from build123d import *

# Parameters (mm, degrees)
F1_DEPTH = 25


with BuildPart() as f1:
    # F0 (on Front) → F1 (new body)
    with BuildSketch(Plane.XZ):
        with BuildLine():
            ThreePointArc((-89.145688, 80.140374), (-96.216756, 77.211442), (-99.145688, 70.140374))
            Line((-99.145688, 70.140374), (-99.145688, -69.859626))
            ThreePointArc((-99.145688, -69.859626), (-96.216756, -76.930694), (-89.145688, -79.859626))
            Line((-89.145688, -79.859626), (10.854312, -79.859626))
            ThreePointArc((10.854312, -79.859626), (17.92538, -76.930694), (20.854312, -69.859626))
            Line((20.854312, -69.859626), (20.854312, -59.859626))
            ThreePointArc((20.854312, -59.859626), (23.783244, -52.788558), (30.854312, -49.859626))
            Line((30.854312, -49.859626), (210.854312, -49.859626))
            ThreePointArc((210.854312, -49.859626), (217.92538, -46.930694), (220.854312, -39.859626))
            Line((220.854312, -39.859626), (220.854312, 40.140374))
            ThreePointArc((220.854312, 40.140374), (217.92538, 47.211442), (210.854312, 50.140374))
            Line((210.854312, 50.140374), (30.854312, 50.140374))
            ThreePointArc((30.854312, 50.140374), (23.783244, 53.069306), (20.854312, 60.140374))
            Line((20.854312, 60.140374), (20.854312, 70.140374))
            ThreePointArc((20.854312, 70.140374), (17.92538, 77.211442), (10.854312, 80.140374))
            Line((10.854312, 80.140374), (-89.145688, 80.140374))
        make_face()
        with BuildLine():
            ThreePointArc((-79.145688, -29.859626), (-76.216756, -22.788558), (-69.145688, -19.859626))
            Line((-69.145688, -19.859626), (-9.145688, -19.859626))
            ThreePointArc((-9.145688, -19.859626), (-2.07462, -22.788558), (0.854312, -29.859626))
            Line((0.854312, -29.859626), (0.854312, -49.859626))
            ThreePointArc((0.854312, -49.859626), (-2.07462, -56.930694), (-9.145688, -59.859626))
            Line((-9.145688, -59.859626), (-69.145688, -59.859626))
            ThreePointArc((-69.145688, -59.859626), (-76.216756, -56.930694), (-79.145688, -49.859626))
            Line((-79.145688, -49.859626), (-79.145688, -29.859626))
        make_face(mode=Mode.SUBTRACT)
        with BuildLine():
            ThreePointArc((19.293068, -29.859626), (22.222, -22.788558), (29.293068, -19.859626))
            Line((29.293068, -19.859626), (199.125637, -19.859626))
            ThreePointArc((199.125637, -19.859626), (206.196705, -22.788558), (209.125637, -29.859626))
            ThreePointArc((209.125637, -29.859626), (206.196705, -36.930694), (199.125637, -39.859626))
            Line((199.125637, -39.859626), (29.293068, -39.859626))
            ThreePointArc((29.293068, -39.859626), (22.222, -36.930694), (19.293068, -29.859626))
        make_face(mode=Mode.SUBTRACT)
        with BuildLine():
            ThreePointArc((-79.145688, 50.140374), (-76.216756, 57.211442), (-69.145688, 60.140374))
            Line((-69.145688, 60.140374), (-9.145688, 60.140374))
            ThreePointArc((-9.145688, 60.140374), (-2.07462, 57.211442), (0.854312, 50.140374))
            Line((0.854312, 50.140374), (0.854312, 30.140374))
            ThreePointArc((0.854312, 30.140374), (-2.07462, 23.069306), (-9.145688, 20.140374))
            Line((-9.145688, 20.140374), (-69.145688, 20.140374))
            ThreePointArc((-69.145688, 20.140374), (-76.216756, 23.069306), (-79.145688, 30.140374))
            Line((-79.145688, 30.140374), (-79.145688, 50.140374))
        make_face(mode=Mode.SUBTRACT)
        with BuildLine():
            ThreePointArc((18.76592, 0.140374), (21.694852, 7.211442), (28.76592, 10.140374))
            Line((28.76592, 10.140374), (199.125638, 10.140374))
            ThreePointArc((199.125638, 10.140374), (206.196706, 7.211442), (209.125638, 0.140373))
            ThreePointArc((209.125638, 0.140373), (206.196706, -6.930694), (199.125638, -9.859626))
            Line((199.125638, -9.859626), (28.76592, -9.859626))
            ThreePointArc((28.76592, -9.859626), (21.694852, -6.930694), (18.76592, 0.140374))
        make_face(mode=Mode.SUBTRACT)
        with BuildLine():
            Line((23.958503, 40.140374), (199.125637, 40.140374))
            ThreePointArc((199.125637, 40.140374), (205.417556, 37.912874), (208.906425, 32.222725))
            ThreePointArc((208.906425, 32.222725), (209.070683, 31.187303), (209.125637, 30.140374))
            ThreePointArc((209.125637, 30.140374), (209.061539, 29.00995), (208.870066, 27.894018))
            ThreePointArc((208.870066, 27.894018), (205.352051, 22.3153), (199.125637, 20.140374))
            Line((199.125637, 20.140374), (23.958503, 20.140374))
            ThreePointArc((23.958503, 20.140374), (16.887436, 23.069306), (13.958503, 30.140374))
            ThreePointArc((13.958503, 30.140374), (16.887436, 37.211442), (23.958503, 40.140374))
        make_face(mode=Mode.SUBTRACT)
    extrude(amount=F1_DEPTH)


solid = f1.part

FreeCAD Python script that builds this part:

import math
import FreeCAD as App
import Part
import Sketcher
Q = App.Units.Quantity

doc = App.newDocument("Part")
body = doc.addObject("PartDesign::Body", "Body")

# Sketch on XZ plane
sketch1 = body.newObject("Sketcher::SketchObject", "Sketch")
sketch1.AttachmentSupport = (doc.getObject("XZ_Plane"), [""])
sketch1.MapMode = "FlatFace"
sketch1.addGeometry([
    Part.ArcOfCircle(Part.Circle(App.Vector(-89.145689, 70.140375, 0), App.Vector(0, 0, 1), 9.999999), math.radians(89.999996), math.radians(180.000004)),  # 0
    Part.LineSegment(App.Vector(-99.145688, 70.140374, 0), App.Vector(-99.145688, -69.859626, 0)),  # 1
    Part.ArcOfCircle(Part.Circle(App.Vector(-89.145689, -69.859627, 0), App.Vector(0, 0, 1), 9.999999), math.radians(179.999996), math.radians(270.000004)),  # 2
    Part.LineSegment(App.Vector(-89.145688, -79.859626, 0), App.Vector(10.854312, -79.859626, 0)),  # 3
    Part.ArcOfCircle(Part.Circle(App.Vector(10.854313, -69.859627, 0), App.Vector(0, 0, 1), 9.999999), math.radians(-90.000004), math.radians(0.000004)),  # 4
    Part.LineSegment(App.Vector(20.854312, -69.859626, 0), App.Vector(20.854312, -59.859626, 0)),  # 5
    Part.ArcOfCircle(Part.Circle(App.Vector(30.854311, -59.859625, 0), App.Vector(0, 0, 1), 9.999999), math.radians(89.999996), math.radians(180.000004)),  # 6
    Part.LineSegment(App.Vector(30.854312, -49.859626, 0), App.Vector(210.854312, -49.859626, 0)),  # 7
    Part.ArcOfCircle(Part.Circle(App.Vector(210.854313, -39.859627, 0), App.Vector(0, 0, 1), 9.999999), math.radians(-90.000004), math.radians(0.000004)),  # 8
    Part.LineSegment(App.Vector(220.854312, -39.859626, 0), App.Vector(220.854312, 40.140374, 0)),  # 9
    Part.ArcOfCircle(Part.Circle(App.Vector(210.854313, 40.140375, 0), App.Vector(0, 0, 1), 9.999999), math.radians(-0.000004), math.radians(90.000004)),  # 10
    Part.LineSegment(App.Vector(210.854312, 50.140374, 0), App.Vector(30.854312, 50.140374, 0)),  # 11
    Part.ArcOfCircle(Part.Circle(App.Vector(30.854311, 60.140373, 0), App.Vector(0, 0, 1), 9.999999), math.radians(179.999996), math.radians(270.000004)),  # 12
    Part.LineSegment(App.Vector(20.854312, 60.140374, 0), App.Vector(20.854312, 70.140374, 0)),  # 13
    Part.ArcOfCircle(Part.Circle(App.Vector(10.854313, 70.140375, 0), App.Vector(0, 0, 1), 9.999999), math.radians(-0.000004), math.radians(90.000004)),  # 14
    Part.LineSegment(App.Vector(10.854312, 80.140374, 0), App.Vector(-89.145688, 80.140374, 0)),  # 15
    Part.LineSegment(App.Vector(-79.145688, -49.859626, 0), App.Vector(-79.145688, -29.859626, 0)),  # 16
    Part.ArcOfCircle(Part.Circle(App.Vector(-69.145689, -29.859625, 0), App.Vector(0, 0, 1), 9.999999), math.radians(89.999996), math.radians(180.000004)),  # 17
    Part.LineSegment(App.Vector(-69.145688, -19.859626, 0), App.Vector(-9.145688, -19.859626, 0)),  # 18
    Part.ArcOfCircle(Part.Circle(App.Vector(-9.145687, -29.859625, 0), App.Vector(0, 0, 1), 9.999999), math.radians(-0.000004), math.radians(90.000004)),  # 19
    Part.LineSegment(App.Vector(0.854312, -29.859626, 0), App.Vector(0.854312, -49.859626, 0)),  # 20
    Part.ArcOfCircle(Part.Circle(App.Vector(-9.145687, -49.859627, 0), App.Vector(0, 0, 1), 9.999999), math.radians(-90.000004), math.radians(0.000004)),  # 21
    Part.LineSegment(App.Vector(-9.145688, -59.859626, 0), App.Vector(-69.145688, -59.859626, 0)),  # 22
    Part.ArcOfCircle(Part.Circle(App.Vector(-69.145689, -49.859627, 0), App.Vector(0, 0, 1), 9.999999), math.radians(179.999996), math.radians(270.000004)),  # 23
    Part.ArcOfCircle(Part.Circle(App.Vector(29.293067, -29.859627, 0), App.Vector(0, 0, 1), 9.999999), math.radians(179.999996), math.radians(270.000004)),  # 24
    Part.ArcOfCircle(Part.Circle(App.Vector(29.293067, -29.859625, 0), App.Vector(0, 0, 1), 9.999999), math.radians(89.999996), math.radians(180.000004)),  # 25
    Part.LineSegment(App.Vector(29.293068, -19.859626, 0), App.Vector(199.125637, -19.859626, 0)),  # 26
    Part.ArcOfCircle(Part.Circle(App.Vector(199.125638, -29.859625, 0), App.Vector(0, 0, 1), 9.999999), math.radians(-0.000004), math.radians(90.000004)),  # 27
    Part.ArcOfCircle(Part.Circle(App.Vector(199.125638, -29.859627, 0), App.Vector(0, 0, 1), 9.999999), math.radians(-90.000004), math.radians(0.000004)),  # 28
    Part.LineSegment(App.Vector(199.125637, -39.859626, 0), App.Vector(29.293068, -39.859626, 0)),  # 29
    Part.LineSegment(App.Vector(-79.145688, 30.140374, 0), App.Vector(-79.145688, 50.140374, 0)),  # 30
    Part.ArcOfCircle(Part.Circle(App.Vector(-69.145689, 50.140375, 0), App.Vector(0, 0, 1), 9.999999), math.radians(89.999996), math.radians(180.000004)),  # 31
    Part.LineSegment(App.Vector(-69.145688, 60.140374, 0), App.Vector(-9.145688, 60.140374, 0)),  # 32
    Part.ArcOfCircle(Part.Circle(App.Vector(-9.145687, 50.140375, 0), App.Vector(0, 0, 1), 9.999999), math.radians(-0.000004), math.radians(90.000004)),  # 33
    Part.LineSegment(App.Vector(0.854312, 50.140374, 0), App.Vector(0.854312, 30.140374, 0)),  # 34
    Part.ArcOfCircle(Part.Circle(App.Vector(-9.145687, 30.140373, 0), App.Vector(0, 0, 1), 9.999999), math.radians(-90.000004), math.radians(0.000004)),  # 35
    Part.LineSegment(App.Vector(-9.145688, 20.140374, 0), App.Vector(-69.145688, 20.140374, 0)),  # 36
    Part.ArcOfCircle(Part.Circle(App.Vector(-69.145689, 30.140373, 0), App.Vector(0, 0, 1), 9.999999), math.radians(179.999996), math.radians(270.000004)),  # 37
    Part.ArcOfCircle(Part.Circle(App.Vector(28.765919, 0.140373, 0), App.Vector(0, 0, 1), 9.999999), math.radians(179.999996), math.radians(270.000004)),  # 38
    Part.ArcOfCircle(Part.Circle(App.Vector(28.765919, 0.140375, 0), App.Vector(0, 0, 1), 9.999999), math.radians(89.999996), math.radians(180.000004)),  # 39
    Part.LineSegment(App.Vector(28.76592, 10.140374, 0), App.Vector(199.125638, 10.140374, 0)),  # 40
    Part.ArcOfCircle(Part.Circle(App.Vector(199.125639, 0.140375, 0), App.Vector(0, 0, 1), 9.999999), math.radians(-0.000009), math.radians(90.000004)),  # 41
    Part.ArcOfCircle(Part.Circle(App.Vector(199.125639, 0.140373, 0), App.Vector(0, 0, 1), 9.999999), math.radians(-90.000004), math.radians(-0.000002)),  # 42
    Part.LineSegment(App.Vector(199.125638, -9.859626, 0), App.Vector(28.76592, -9.859626, 0)),  # 43
    Part.ArcOfCircle(Part.Circle(App.Vector(23.958504, 30.140373, 0), App.Vector(0, 0, 1), 10.000001), math.radians(90.000006), math.radians(179.999994)),  # 44
    Part.LineSegment(App.Vector(23.958503, 40.140374, 0), App.Vector(199.125637, 40.140374, 0)),  # 45
    Part.ArcOfCircle(Part.Circle(App.Vector(199.125637, 30.140374, 0), App.Vector(0, 0, 1), 10), math.radians(12.018944), math.radians(90.000001)),  # 46
    Part.ArcOfCircle(Part.Circle(App.Vector(199.125641, 30.140374, 0), App.Vector(0, 0, 1), 9.999996), math.radians(-0.000002), math.radians(12.018948)),  # 47
    Part.ArcOfCircle(Part.Circle(App.Vector(199.125645, 30.14037, 0), App.Vector(0, 0, 1), 9.999992), math.radians(-12.981441), math.radians(0.00002)),  # 48
    Part.ArcOfCircle(Part.Circle(App.Vector(199.125639, 30.140373, 0), App.Vector(0, 0, 1), 9.999999), math.radians(-90.000009), math.radians(-12.981445)),  # 49
    Part.LineSegment(App.Vector(199.125637, 20.140374, 0), App.Vector(23.958503, 20.140374, 0)),  # 50
    Part.ArcOfCircle(Part.Circle(App.Vector(23.958504, 30.140375, 0), App.Vector(0, 0, 1), 10.000001), math.radians(-179.999994), math.radians(-90.000006)),  # 51
], False)
sketch1.addConstraint([
    Sketcher.Constraint("Tangent", 0, 2, 1, 1),
    Sketcher.Constraint("Tangent", 1, 2, 2, 1),
    Sketcher.Constraint("Tangent", 2, 2, 3, 1),
    Sketcher.Constraint("Tangent", 3, 2, 4, 1),
    Sketcher.Constraint("Tangent", 4, 2, 5, 1),
    Sketcher.Constraint("Tangent", 5, 2, 6, 2),
    Sketcher.Constraint("Tangent", 6, 1, 7, 1),
    Sketcher.Constraint("Tangent", 7, 2, 8, 1),
    Sketcher.Constraint("Tangent", 8, 2, 9, 1),
    Sketcher.Constraint("Tangent", 9, 2, 10, 1),
    Sketcher.Constraint("Tangent", 10, 2, 11, 1),
    Sketcher.Constraint("Tangent", 11, 2, 12, 2),
    Sketcher.Constraint("Tangent", 12, 1, 13, 1),
    Sketcher.Constraint("Tangent", 13, 2, 14, 1),
    Sketcher.Constraint("Tangent", 14, 2, 15, 1),
    Sketcher.Constraint("Tangent", 15, 2, 0, 1),
    Sketcher.Constraint("Tangent", 16, 2, 17, 2),
    Sketcher.Constraint("Tangent", 17, 1, 18, 1),
    Sketcher.Constraint("Tangent", 18, 2, 19, 2),
    Sketcher.Constraint("Tangent", 19, 1, 20, 1),
    Sketcher.Constraint("Tangent", 20, 2, 21, 2),
    Sketcher.Constraint("Tangent", 21, 1, 22, 1),
    Sketcher.Constraint("Tangent", 22, 2, 23, 2),
    Sketcher.Constraint("Tangent", 23, 1, 16, 1),
    Sketcher.Constraint("Tangent", 24, 1, 25, 2),
    Sketcher.Constraint("Tangent", 25, 1, 26, 1),
    Sketcher.Constraint("Tangent", 26, 2, 27, 2),
    Sketcher.Constraint("Tangent", 27, 1, 28, 2),
    Sketcher.Constraint("Tangent", 28, 1, 29, 1),
    Sketcher.Constraint("Tangent", 29, 2, 24, 2),
    Sketcher.Constraint("Tangent", 30, 2, 31, 2),
    Sketcher.Constraint("Tangent", 31, 1, 32, 1),
    Sketcher.Constraint("Tangent", 32, 2, 33, 2),
    Sketcher.Constraint("Tangent", 33, 1, 34, 1),
    Sketcher.Constraint("Tangent", 34, 2, 35, 2),
    Sketcher.Constraint("Tangent", 35, 1, 36, 1),
    Sketcher.Constraint("Tangent", 36, 2, 37, 2),
    Sketcher.Constraint("Tangent", 37, 1, 30, 1),
    Sketcher.Constraint("Tangent", 38, 1, 39, 2),
    Sketcher.Constraint("Tangent", 39, 1, 40, 1),
    Sketcher.Constraint("Tangent", 40, 2, 41, 2),
    Sketcher.Constraint("Tangent", 41, 1, 42, 2),
    Sketcher.Constraint("Tangent", 42, 1, 43, 1),
    Sketcher.Constraint("Tangent", 43, 2, 38, 2),
    Sketcher.Constraint("Tangent", 44, 1, 45, 1),
    Sketcher.Constraint("Tangent", 45, 2, 46, 2),
    Sketcher.Constraint("Tangent", 46, 1, 47, 2),
    Sketcher.Constraint("Tangent", 47, 1, 48, 2),
    Sketcher.Constraint("Tangent", 48, 1, 49, 2),
    Sketcher.Constraint("Tangent", 49, 1, 50, 1),
    Sketcher.Constraint("Tangent", 50, 2, 51, 2),
    Sketcher.Constraint("Tangent", 51, 1, 44, 2),
    Sketcher.Constraint("Vertical", 1),
    Sketcher.Constraint("Horizontal", 3),
    Sketcher.Constraint("Vertical", 5),
    Sketcher.Constraint("Horizontal", 7),
    Sketcher.Constraint("Vertical", 9),
    Sketcher.Constraint("Horizontal", 11),
    Sketcher.Constraint("Vertical", 13),
    Sketcher.Constraint("Horizontal", 15),
    Sketcher.Constraint("Vertical", 16),
    Sketcher.Constraint("Horizontal", 18),
    Sketcher.Constraint("Vertical", 20),
    Sketcher.Constraint("Horizontal", 22),
    Sketcher.Constraint("Horizontal", 26),
    Sketcher.Constraint("Horizontal", 29),
    Sketcher.Constraint("Vertical", 30),
    Sketcher.Constraint("Horizontal", 32),
    Sketcher.Constraint("Vertical", 34),
    Sketcher.Constraint("Horizontal", 36),
    Sketcher.Constraint("Horizontal", 40),
    Sketcher.Constraint("Horizontal", 43),
    Sketcher.Constraint("Horizontal", 45),
    Sketcher.Constraint("Horizontal", 50),
    Sketcher.Constraint("Coincident", 48, 3, 46, 3),
    Sketcher.Constraint("Equal", 0, 2),
    Sketcher.Constraint("Equal", 2, 4),
    Sketcher.Constraint("Equal", 4, 6),
    Sketcher.Constraint("Equal", 6, 8),
    Sketcher.Constraint("Equal", 8, 10),
    Sketcher.Constraint("Equal", 10, 12),
    Sketcher.Constraint("Equal", 12, 14),
    Sketcher.Constraint("Equal", 14, 17),
    Sketcher.Constraint("Equal", 17, 19),
    Sketcher.Constraint("Equal", 19, 21),
    Sketcher.Constraint("Equal", 21, 23),
    Sketcher.Constraint("Equal", 23, 24),
    Sketcher.Constraint("Equal", 24, 25),
    Sketcher.Constraint("Equal", 25, 27),
    Sketcher.Constraint("Equal", 28, 31),
    Sketcher.Constraint("Equal", 31, 33),
    Sketcher.Constraint("Equal", 33, 35),
    Sketcher.Constraint("Equal", 35, 37),
    Sketcher.Constraint("Equal", 37, 38),
    Sketcher.Constraint("Equal", 38, 39),
    Sketcher.Constraint("Equal", 39, 41),
    Sketcher.Constraint("Equal", 42, 44),
    Sketcher.Constraint("Equal", 44, 46),
    Sketcher.Constraint("Equal", 46, 49),
    Sketcher.Constraint("Horizontal", 19, 3, 24, 3),
    Sketcher.Constraint("Horizontal", 37, 3, 44, 3),
    Sketcher.Constraint("Horizontal", 23, 3, 6, 1),
    Sketcher.Constraint("Horizontal", 33, 3, 10, 2),
    Sketcher.Constraint("Horizontal", 19, 1, 24, 1),
    Sketcher.Constraint("Horizontal", 24, 1, 27, 1),
    Sketcher.Constraint("Horizontal", 8, 2, 28, 1),
    Sketcher.Constraint("Horizontal", 42, 3, 38, 1),
    Sketcher.Constraint("Horizontal", 38, 1, 41, 1),
    Sketcher.Constraint("Horizontal", 9, 2, 44, 1),
    Sketcher.Constraint("Horizontal", 37, 1, 47, 1),
    Sketcher.Constraint("Horizontal", 47, 1, 51, 1),
    Sketcher.Constraint("Vertical", 6, 3, 12, 3),
    Sketcher.Constraint("Vertical", 23, 3, 31, 3),
    Sketcher.Constraint("Vertical", 21, 3, 33, 3),
    Sketcher.Constraint("Vertical", 28, 3, 41, 3),
    Sketcher.Constraint("Vertical", 42, 3, 46, 3),
    Sketcher.Constraint("Equal", 5, 13),
    Sketcher.Constraint("Radius", 0, Q("9.999999 mm")),
    Sketcher.Constraint("DistanceX", 3, 1, 3, 2, Q("100 mm")),
    Sketcher.Constraint("DistanceX", 7, 1, 7, 2, Q("180 mm")),
    Sketcher.Constraint("DistanceX", 18, 1, 18, 2, Q("60 mm")),
    Sketcher.Constraint("DistanceY", 1, 2, 1, 1, Q("140 mm")),
    Sketcher.Constraint("DistanceY", 5, 1, 5, 2, Q("10 mm")),
    Sketcher.Constraint("DistanceX", 26, 1, 26, 2, Q("169.832569 mm")),
    Sketcher.Constraint("DistanceX", 40, 1, 40, 2, Q("170.359718 mm")),
    Sketcher.Constraint("DistanceX", 45, 1, 45, 2, Q("175.167134 mm")),
    Sketcher.Constraint("DistanceX", 0, 3, -1, 1, Q("89.145689 mm")),
    Sketcher.Constraint("DistanceX", 17, 3, -1, 1, Q("69.145689 mm")),
    Sketcher.Constraint("DistanceX", -1, 1, 38, 3, Q("28.765919 mm")),
    Sketcher.Constraint("DistanceY", -1, 1, 48, 3, Q("30.14037 mm")),
    Sketcher.Constraint("DistanceY", -1, 1, 48, 1, Q("27.894018 mm")),
    Sketcher.Constraint("DistanceY", -1, 1, 38, 3, Q("0.140373 mm")),
    Sketcher.Constraint("DistanceX", -1, 1, 46, 1, Q("208.906425 mm")),
])
pad1 = body.newObject("PartDesign::Pad", "Pad")
pad1.Profile = sketch1
pad1.Length = 25

doc.recompute()
